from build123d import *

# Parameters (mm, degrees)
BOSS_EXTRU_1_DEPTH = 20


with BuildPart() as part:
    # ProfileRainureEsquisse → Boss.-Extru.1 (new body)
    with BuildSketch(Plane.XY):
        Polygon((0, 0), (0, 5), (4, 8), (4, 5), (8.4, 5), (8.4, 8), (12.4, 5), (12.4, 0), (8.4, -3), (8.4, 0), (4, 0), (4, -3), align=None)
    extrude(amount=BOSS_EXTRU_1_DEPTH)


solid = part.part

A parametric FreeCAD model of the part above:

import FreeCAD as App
import Part
import Sketcher

V = App.Vector

doc = App.newDocument("Part")
body = doc.addObject("PartDesign::Body", "Body")

sketch1 = doc.addObject("Sketcher::SketchObject", "Sketch")
body.addObject(sketch1)
sketch1.AttachmentSupport = (doc.XY_Plane, [""])
sketch1.MapMode = "FlatFace"
sketch1.addGeometry(Part.LineSegment(V(0, 5, 0), V(0, 0, 0)), False)
sketch1.addGeometry(Part.LineSegment(V(0, 0, 0), V(4, -3, 0)), False)
sketch1.addGeometry(Part.LineSegment(V(4, -3, 0), V(4, 0, 0)), False)
sketch1.addGeometry(Part.LineSegment(V(4, 0, 0), V(8.4, 0, 0)), False)
sketch1.addGeometry(Part.LineSegment(V(8.4, 0, 0), V(8.4, -3, 0)), False)
sketch1.addGeometry(Part.LineSegment(V(8.4, -3, 0), V(12.4, 0, 0)), False)
sketch1.addGeometry(Part.LineSegment(V(12.4, 0, 0), V(12.4, 5, 0)), False)
sketch1.addGeometry(Part.LineSegment(V(12.4, 5, 0), V(8.4, 8, 0)), False)
sketch1.addGeometry(Part.LineSegment(V(8.4, 8, 0), V(8.4, 5, 0)), False)
sketch1.addGeometry(Part.LineSegment(V(8.4, 5, 0), V(4, 5, 0)), False)
sketch1.addGeometry(Part.LineSegment(V(4, 5, 0), V(4, 8, 0)), False)
sketch1.addGeometry(Part.LineSegment(V(4, 8, 0), V(0, 5, 0)), False)
sketch1.addConstraint(Sketcher.Constraint("Coincident", 0, 2, 1, 1))
sketch1.addConstraint(Sketcher.Constraint("Coincident", 1, 2, 2, 1))
sketch1.addConstraint(Sketcher.Constraint("Coincident", 2, 2, 3, 1))
sketch1.addConstraint(Sketcher.Constraint("Coincident", 3, 2, 4, 1))
sketch1.addConstraint(Sketcher.Constraint("Coincident", 4, 2, 5, 1))
sketch1.addConstraint(Sketcher.Constraint("Coincident", 5, 2, 6, 1))
sketch1.addConstraint(Sketcher.Constraint("Coincident", 6, 2, 7, 1))
sketch1.addConstraint(Sketcher.Constraint("Coincident", 7, 2, 8, 1))
sketch1.addConstraint(Sketcher.Constraint("Coincident", 8, 2, 9, 1))
sketch1.addConstraint(Sketcher.Constraint("Coincident", 9, 2, 10, 1))
sketch1.addConstraint(Sketcher.Constraint("Coincident", 10, 2, 11, 1))
sketch1.addConstraint(Sketcher.Constraint("Coincident", 11, 2, 0, 1))
sketch1.addConstraint(Sketcher.Constraint("Vertical", 0))
sketch1.addConstraint(Sketcher.Constraint("Vertical", 2))
sketch1.addConstraint(Sketcher.Constraint("Horizontal", 3))
sketch1.addConstraint(Sketcher.Constraint("Vertical", 4))
sketch1.addConstraint(Sketcher.Constraint("Vertical", 6))
sketch1.addConstraint(Sketcher.Constraint("Vertical", 8))
sketch1.addConstraint(Sketcher.Constraint("Horizontal", 9))
sketch1.addConstraint(Sketcher.Constraint("Vertical", 10))
sketch1.addConstraint(Sketcher.Constraint("Coincident", 0, 2, -1, 1))
sketch1.addConstraint(Sketcher.Constraint("PointOnObject", 2, 2, -1))
sketch1.addConstraint(Sketcher.Constraint("PointOnObject", 5, 2, -1))
sketch1.addConstraint(Sketcher.Constraint("Parallel", 1, 7))
sketch1.addConstraint(Sketcher.Constraint("Parallel", 5, 11))
sketch1.addConstraint(Sketcher.Constraint("Horizontal", 1, 2, 4, 2))
sketch1.addConstraint(Sketcher.Constraint("Horizontal", 6, 2, 8, 2))
sketch1.addConstraint(Sketcher.Constraint("Horizontal", 7, 2, 10, 2))
sketch1.addConstraint(Sketcher.Constraint("Horizontal", 9, 2, 11, 2))
sketch1.addConstraint(Sketcher.Constraint("Vertical", 4, 2, 7, 2))
sketch1.addConstraint(Sketcher.Constraint("Vertical", 2, 2, 9, 2))
sketch1.addConstraint(Sketcher.Constraint("DistanceY", 0, 2, 0, 1, 5.0))
sketch1.addConstraint(Sketcher.Constraint("DistanceY", 2, 1, 2, 2, 3.0))
sketch1.addConstraint(Sketcher.Constraint("Distance", 1, 5.0))
sketch1.addConstraint(Sketcher.Constraint("DistanceX", 3, 1, 3, 2, 4.4))
pad1 = doc.addObject("PartDesign::Pad", "Pad")
body.addObject(pad1)
pad1.Profile = sketch1
pad1.Length = 20

doc.recompute()
